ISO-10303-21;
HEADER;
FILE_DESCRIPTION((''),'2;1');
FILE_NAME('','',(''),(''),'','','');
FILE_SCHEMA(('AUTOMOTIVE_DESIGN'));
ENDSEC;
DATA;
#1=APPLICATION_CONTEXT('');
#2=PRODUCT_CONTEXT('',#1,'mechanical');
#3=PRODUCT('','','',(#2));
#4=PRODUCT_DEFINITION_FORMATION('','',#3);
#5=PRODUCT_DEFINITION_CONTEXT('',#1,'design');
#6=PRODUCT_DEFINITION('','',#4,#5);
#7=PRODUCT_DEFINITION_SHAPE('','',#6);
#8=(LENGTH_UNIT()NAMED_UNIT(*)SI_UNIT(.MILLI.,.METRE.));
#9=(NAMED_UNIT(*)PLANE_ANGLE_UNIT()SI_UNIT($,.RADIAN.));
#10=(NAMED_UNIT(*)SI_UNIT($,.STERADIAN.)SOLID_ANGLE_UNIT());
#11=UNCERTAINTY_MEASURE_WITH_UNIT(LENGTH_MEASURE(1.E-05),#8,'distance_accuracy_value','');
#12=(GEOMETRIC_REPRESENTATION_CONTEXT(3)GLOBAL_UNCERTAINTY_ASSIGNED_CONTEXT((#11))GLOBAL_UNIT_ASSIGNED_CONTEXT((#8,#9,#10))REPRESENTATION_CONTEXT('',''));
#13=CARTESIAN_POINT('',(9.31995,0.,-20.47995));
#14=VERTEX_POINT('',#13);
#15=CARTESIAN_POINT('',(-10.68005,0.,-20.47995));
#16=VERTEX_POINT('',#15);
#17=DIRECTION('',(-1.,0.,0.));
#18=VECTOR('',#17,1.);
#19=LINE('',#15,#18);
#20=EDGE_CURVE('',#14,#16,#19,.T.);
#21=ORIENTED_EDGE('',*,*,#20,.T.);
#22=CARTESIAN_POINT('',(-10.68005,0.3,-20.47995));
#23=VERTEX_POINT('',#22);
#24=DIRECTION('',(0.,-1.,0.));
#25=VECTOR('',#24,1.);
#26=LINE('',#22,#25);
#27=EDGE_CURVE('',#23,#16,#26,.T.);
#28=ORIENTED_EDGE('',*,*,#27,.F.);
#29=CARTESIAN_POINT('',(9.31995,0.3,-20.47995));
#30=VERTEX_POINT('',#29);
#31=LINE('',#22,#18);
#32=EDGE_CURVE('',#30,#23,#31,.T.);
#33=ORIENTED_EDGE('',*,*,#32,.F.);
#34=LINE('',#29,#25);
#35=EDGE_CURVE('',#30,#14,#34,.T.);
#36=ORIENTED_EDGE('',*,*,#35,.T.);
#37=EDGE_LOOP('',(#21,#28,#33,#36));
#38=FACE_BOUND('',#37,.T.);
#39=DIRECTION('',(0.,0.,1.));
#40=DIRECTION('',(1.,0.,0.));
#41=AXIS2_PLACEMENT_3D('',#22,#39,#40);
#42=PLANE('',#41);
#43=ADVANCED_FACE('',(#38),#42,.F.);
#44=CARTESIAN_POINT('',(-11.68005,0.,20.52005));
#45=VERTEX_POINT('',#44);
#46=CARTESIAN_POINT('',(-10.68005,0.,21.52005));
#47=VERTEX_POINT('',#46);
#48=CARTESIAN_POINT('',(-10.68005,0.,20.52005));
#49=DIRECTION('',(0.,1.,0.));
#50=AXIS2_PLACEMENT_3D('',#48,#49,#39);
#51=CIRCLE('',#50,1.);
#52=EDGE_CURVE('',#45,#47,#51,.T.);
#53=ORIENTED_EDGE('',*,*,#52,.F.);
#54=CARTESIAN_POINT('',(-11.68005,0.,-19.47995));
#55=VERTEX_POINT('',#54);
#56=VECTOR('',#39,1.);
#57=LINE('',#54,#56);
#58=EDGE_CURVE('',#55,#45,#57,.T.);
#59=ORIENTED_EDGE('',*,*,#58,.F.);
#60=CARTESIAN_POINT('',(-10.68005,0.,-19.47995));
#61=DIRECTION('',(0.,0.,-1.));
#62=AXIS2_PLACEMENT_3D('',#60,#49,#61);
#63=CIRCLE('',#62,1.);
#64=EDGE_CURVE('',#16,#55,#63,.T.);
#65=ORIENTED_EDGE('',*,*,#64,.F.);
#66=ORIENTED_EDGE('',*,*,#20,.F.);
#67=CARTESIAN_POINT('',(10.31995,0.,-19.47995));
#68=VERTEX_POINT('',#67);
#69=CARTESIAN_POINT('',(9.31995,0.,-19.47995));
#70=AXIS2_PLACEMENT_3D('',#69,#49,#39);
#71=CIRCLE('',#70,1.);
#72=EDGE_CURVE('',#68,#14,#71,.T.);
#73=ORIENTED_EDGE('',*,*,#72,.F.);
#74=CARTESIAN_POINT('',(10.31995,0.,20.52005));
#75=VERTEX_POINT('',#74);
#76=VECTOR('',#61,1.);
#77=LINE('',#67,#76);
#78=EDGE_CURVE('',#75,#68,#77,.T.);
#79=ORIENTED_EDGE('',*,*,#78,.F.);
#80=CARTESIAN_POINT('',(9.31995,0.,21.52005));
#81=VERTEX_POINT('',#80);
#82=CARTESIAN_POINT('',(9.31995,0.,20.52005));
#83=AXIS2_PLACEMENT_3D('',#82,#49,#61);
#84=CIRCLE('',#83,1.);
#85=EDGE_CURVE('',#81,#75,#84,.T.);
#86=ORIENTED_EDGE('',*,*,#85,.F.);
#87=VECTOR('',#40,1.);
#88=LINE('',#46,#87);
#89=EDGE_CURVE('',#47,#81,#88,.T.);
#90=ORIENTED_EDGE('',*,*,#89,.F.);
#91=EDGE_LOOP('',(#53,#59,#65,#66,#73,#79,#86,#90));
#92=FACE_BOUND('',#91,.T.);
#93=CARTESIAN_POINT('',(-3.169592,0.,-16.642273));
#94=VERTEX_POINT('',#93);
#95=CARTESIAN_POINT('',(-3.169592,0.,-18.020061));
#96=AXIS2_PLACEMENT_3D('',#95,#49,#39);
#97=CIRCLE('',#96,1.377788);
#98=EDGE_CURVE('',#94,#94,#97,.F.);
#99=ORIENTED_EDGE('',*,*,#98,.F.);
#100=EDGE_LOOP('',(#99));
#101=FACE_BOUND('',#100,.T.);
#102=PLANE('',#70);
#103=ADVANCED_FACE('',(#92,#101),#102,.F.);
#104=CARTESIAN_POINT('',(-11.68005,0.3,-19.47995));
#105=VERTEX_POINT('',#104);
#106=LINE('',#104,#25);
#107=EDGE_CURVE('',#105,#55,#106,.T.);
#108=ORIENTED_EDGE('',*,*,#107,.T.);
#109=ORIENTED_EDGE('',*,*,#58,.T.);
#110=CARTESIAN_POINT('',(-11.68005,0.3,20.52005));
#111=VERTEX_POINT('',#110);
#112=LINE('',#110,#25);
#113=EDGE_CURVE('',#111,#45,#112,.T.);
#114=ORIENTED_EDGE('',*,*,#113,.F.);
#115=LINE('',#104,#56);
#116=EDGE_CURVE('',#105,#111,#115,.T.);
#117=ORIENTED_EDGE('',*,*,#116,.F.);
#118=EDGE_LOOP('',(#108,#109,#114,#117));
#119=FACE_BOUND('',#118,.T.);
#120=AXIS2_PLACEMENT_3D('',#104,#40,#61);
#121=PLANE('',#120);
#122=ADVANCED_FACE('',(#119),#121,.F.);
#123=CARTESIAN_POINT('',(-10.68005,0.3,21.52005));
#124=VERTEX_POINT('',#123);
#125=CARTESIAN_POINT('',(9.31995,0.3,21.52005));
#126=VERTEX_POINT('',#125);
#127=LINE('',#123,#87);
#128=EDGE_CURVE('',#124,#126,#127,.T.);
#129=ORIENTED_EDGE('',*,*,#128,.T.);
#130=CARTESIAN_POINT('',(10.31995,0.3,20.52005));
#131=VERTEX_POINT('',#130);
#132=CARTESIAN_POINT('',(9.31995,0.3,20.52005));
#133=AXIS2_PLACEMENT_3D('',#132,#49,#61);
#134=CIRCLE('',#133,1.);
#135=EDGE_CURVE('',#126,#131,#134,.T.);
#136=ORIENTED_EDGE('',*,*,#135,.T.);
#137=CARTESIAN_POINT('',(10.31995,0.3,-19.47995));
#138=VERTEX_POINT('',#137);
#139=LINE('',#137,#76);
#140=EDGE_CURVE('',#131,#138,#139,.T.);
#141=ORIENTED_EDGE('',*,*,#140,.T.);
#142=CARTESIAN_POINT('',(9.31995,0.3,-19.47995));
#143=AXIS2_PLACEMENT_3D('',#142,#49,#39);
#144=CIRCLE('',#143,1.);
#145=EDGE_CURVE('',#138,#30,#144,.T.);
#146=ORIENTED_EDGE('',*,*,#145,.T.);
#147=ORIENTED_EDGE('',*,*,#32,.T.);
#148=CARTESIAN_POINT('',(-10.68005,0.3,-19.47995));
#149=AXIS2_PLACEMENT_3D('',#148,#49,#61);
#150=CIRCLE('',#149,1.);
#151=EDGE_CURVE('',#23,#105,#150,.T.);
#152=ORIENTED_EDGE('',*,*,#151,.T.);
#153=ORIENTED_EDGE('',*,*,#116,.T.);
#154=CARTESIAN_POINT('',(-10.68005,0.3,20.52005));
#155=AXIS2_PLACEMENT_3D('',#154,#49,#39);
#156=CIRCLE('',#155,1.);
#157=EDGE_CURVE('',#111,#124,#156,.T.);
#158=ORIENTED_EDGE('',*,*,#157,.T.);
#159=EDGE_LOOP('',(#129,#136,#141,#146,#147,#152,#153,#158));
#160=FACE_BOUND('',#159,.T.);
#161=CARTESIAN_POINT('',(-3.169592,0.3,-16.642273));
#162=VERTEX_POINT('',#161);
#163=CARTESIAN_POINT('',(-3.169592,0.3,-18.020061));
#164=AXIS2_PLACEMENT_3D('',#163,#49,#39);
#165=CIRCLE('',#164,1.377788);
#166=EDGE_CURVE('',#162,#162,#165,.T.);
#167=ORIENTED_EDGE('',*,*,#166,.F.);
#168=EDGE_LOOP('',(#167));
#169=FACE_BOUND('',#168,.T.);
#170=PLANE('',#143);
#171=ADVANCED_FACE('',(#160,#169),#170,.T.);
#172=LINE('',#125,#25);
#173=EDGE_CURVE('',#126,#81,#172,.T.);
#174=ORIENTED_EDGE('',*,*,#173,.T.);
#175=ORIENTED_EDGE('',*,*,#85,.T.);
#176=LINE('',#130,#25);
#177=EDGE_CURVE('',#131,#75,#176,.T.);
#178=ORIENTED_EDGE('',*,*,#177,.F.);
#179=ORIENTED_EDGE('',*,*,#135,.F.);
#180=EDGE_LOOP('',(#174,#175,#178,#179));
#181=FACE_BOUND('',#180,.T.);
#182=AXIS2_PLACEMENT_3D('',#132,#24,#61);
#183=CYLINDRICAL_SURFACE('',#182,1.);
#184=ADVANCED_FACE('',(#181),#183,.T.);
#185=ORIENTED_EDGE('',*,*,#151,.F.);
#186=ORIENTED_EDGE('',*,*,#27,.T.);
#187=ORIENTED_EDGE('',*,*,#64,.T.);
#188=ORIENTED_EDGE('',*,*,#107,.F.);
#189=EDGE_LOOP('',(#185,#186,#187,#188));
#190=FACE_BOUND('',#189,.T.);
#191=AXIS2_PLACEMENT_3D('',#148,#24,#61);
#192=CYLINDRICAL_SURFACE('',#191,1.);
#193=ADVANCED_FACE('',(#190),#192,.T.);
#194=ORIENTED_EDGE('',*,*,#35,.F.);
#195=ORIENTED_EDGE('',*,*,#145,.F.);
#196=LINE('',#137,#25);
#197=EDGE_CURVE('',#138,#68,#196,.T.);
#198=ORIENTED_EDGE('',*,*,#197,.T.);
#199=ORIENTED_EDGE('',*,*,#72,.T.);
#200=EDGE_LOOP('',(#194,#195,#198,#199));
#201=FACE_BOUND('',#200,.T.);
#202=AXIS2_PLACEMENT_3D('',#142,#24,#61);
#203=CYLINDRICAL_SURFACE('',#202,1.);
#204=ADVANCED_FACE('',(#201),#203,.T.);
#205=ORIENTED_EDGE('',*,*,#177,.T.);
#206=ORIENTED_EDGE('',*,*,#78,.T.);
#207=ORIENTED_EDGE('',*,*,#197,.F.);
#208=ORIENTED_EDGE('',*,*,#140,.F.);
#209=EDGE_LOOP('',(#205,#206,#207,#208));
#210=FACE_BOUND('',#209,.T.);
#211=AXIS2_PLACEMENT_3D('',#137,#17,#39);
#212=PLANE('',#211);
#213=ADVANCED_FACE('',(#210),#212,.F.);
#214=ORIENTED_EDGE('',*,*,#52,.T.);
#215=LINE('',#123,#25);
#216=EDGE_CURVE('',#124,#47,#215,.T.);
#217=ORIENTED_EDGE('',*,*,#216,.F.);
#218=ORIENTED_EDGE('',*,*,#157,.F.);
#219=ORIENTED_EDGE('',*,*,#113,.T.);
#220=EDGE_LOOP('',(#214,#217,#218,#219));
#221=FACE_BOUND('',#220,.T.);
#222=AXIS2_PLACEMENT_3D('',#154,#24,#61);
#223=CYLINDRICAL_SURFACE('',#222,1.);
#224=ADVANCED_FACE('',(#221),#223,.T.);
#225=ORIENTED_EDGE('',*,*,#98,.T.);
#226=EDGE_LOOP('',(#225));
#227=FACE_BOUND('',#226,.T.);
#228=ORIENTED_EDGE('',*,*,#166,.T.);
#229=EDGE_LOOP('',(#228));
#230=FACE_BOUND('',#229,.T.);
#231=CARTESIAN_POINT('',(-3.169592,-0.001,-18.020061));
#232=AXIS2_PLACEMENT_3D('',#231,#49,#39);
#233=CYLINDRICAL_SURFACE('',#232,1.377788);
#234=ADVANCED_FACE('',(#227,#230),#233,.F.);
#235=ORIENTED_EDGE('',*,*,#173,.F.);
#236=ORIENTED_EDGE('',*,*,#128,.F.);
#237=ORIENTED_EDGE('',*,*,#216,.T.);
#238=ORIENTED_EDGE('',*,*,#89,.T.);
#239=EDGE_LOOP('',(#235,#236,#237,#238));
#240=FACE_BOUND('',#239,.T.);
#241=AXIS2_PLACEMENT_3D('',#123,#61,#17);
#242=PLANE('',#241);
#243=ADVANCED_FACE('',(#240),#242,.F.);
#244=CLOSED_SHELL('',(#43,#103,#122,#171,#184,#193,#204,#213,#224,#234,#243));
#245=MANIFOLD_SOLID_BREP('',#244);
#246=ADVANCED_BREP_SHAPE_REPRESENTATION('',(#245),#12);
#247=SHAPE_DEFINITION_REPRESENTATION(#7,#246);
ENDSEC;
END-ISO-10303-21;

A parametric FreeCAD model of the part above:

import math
import FreeCAD as App
import Part
import Sketcher
from FreeCAD import Vector
Q = App.Units.Quantity

doc = App.newDocument("Part")
body = doc.addObject("PartDesign::Body", "Body")

# Sketch on XZ plane
sketch1 = doc.addObject("Sketcher::SketchObject", "Sketch")
body.addObject(sketch1)
sketch1.AttachmentSupport = (doc.XZ_Plane, [""])
sketch1.MapMode = "FlatFace"
sketch1.addGeometry([
    Part.LineSegment(Vector(9.31995, -20.47995, 0), Vector(-10.68005, -20.47995, 0)),  # 0
    Part.ArcOfCircle(Part.Circle(Vector(-10.68005, -19.47995, 0), Vector(0, 0, 1), 1), math.radians(180), math.radians(270)),  # 1
    Part.LineSegment(Vector(-11.68005, -19.47995, 0), Vector(-11.68005, 20.52005, 0)),  # 2
    Part.ArcOfCircle(Part.Circle(Vector(-10.68005, 20.52005, 0), Vector(0, 0, 1), 1), math.radians(90), math.radians(180)),  # 3
    Part.LineSegment(Vector(-10.68005, 21.52005, 0), Vector(9.31995, 21.52005, 0)),  # 4
    Part.ArcOfCircle(Part.Circle(Vector(9.31995, 20.52005, 0), Vector(0, 0, 1), 1), math.radians(0), math.radians(90)),  # 5
    Part.LineSegment(Vector(10.31995, 20.52005, 0), Vector(10.31995, -19.47995, 0)),  # 6
    Part.ArcOfCircle(Part.Circle(Vector(9.31995, -19.47995, 0), Vector(0, 0, 1), 1), math.radians(-90), math.radians(0)),  # 7
], False)
sketch1.addConstraint([
    Sketcher.Constraint("Tangent", 0, 2, 1, 2),
    Sketcher.Constraint("Tangent", 1, 1, 2, 1),
    Sketcher.Constraint("Tangent", 2, 2, 3, 2),
    Sketcher.Constraint("Tangent", 3, 1, 4, 1),
    Sketcher.Constraint("Tangent", 4, 2, 5, 2),
    Sketcher.Constraint("Tangent", 5, 1, 6, 1),
    Sketcher.Constraint("Tangent", 6, 2, 7, 2),
    Sketcher.Constraint("Tangent", 7, 1, 0, 1),
    Sketcher.Constraint("Horizontal", 0),
    Sketcher.Constraint("Vertical", 2),
    Sketcher.Constraint("Horizontal", 4),
    Sketcher.Constraint("Vertical", 6),
    Sketcher.Constraint("Equal", 1, 3),
    Sketcher.Constraint("Equal", 3, 5),
    Sketcher.Constraint("Equal", 5, 7),
    Sketcher.Constraint("Radius", 1, Q("1 mm")),
    Sketcher.Constraint("DistanceX", 0, 2, 0, 1, Q("20 mm")),
    Sketcher.Constraint("DistanceY", 2, 1, 2, 2, Q("40 mm")),
    Sketcher.Constraint("DistanceX", 1, 3, -1, 1, Q("10.68005 mm")),
    Sketcher.Constraint("DistanceY", 1, 3, -1, 1, Q("19.47995 mm")),
])
pad1 = doc.addObject("PartDesign::Pad", "Pad")
body.addObject(pad1)
pad1.Profile = sketch1
pad1.Length = 0.3
pad1.Reversed = True

# Sketch on XZ plane
sketch2 = doc.addObject("Sketcher::SketchObject", "Sketch001")
body.addObject(sketch2)
sketch2.AttachmentSupport = (doc.XZ_Plane, [""])
sketch2.MapMode = "FlatFace"
sketch2.AttachmentOffset = App.Placement(Vector(0, 0, -0.3), App.Rotation())
sketch2.addGeometry(Part.Circle(Vector(-3.169592, -18.020061, 0), Vector(0, 0, 1), 1.377788), False)
sketch2.addConstraint([
    Sketcher.Constraint("Diameter", 0, Q("2.755575 mm")),
    Sketcher.Constraint("DistanceX", 0, 3, -1, 1, Q("3.169592 mm")),
    Sketcher.Constraint("DistanceY", 0, 3, -1, 1, Q("18.020061 mm")),
])
pocket1 = doc.addObject("PartDesign::Pocket", "Pocket")
body.addObject(pocket1)
pocket1.Profile = sketch2
pocket1.Type = "UpToFirst"
pocket1.Reversed = True

doc.recompute()
